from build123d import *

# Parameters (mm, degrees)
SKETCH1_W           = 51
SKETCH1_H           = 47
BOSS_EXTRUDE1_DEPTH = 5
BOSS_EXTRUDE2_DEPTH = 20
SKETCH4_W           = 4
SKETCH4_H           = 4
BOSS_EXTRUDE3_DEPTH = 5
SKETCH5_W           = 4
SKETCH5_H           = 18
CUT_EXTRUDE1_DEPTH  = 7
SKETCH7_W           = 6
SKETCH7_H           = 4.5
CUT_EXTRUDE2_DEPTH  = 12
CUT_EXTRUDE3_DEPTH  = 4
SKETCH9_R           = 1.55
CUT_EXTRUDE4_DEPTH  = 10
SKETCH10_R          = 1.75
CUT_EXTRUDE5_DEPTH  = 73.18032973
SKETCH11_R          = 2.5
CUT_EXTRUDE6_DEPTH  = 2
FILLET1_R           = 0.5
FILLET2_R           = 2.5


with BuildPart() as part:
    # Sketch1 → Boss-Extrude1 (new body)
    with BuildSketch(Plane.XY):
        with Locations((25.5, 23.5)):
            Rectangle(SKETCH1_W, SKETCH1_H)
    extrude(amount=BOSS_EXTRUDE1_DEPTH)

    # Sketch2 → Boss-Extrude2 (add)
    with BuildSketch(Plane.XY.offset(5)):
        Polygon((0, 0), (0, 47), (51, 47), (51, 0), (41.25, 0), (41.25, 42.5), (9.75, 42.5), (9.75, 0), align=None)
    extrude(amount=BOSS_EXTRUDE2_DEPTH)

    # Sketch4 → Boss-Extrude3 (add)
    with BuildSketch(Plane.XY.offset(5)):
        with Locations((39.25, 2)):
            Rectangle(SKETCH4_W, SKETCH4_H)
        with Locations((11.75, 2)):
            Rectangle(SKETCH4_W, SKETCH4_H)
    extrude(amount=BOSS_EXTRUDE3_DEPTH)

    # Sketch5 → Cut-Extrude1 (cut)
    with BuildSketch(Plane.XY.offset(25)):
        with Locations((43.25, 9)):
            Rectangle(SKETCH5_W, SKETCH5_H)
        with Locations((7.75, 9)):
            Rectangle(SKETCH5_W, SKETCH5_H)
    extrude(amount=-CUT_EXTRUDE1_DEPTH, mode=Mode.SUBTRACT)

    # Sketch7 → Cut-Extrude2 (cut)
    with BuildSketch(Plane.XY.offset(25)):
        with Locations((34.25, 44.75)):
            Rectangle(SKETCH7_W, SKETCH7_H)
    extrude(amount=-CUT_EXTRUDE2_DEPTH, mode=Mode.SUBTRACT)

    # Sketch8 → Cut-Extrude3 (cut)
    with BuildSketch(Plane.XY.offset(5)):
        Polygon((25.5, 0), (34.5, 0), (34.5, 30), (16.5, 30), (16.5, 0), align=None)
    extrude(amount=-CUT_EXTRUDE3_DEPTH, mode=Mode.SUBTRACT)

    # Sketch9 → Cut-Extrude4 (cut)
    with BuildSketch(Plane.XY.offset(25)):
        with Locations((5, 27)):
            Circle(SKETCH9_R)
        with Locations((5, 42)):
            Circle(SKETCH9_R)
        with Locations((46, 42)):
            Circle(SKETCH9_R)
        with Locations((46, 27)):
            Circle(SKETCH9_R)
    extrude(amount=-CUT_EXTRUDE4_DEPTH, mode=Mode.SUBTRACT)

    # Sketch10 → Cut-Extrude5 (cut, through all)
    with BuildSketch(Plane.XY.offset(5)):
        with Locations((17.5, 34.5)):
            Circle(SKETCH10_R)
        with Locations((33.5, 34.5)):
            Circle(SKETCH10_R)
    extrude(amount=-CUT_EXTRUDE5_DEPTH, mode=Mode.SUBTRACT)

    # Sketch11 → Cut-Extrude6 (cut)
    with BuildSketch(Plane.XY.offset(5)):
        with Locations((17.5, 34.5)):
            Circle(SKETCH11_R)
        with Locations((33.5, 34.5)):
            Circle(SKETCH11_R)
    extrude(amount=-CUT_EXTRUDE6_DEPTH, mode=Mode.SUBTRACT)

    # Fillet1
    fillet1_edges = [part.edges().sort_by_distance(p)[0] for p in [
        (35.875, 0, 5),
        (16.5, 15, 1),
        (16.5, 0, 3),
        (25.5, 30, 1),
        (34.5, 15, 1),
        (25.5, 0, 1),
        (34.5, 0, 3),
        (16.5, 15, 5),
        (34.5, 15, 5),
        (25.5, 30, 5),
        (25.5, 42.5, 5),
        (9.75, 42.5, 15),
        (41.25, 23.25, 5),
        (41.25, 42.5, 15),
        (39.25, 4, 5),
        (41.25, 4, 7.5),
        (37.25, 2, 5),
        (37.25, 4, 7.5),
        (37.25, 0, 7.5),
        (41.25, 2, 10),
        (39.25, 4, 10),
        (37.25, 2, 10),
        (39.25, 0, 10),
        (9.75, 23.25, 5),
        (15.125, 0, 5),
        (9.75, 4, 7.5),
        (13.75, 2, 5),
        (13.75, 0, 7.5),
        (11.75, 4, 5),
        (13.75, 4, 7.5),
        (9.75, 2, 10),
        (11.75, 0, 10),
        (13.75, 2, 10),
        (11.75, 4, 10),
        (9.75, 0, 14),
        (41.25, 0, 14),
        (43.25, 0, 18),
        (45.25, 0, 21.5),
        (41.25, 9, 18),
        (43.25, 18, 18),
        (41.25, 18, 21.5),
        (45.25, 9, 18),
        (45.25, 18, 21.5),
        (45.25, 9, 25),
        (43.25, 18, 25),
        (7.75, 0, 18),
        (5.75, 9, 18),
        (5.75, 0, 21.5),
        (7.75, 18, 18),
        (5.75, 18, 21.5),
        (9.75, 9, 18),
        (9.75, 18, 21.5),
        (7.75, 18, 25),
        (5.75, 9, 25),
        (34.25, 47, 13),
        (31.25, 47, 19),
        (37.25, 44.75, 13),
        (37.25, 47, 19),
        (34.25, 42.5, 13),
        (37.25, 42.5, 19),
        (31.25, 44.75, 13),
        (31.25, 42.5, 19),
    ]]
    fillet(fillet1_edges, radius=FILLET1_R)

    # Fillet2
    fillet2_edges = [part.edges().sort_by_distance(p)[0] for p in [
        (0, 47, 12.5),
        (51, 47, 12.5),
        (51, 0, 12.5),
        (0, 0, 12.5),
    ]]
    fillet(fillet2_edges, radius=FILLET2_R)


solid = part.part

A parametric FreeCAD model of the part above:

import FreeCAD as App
import Part
import Sketcher

V = App.Vector
Q = App.Units.Quantity


def edges_at(feature, points):
    """Names of the edges that pass closest to the given points."""
    edges = feature.Shape.Edges
    near = lambda p: min(range(len(edges)), key=lambda i: edges[i].distToShape(Part.Vertex(*p))[0])
    return sorted({f"Edge{near(p) + 1}" for p in points})

doc = App.newDocument("Part")
body = doc.addObject("PartDesign::Body", "Body")

# Sketch on XY plane
sketch1 = doc.addObject("Sketcher::SketchObject", "Sketch")
body.addObject(sketch1)
sketch1.AttachmentSupport = (doc.XY_Plane, [""])
sketch1.MapMode = "FlatFace"
sketch1.addGeometry([
    Part.LineSegment(V(0, 47, 0), V(0, 0, 0)),
    Part.LineSegment(V(0, 0, 0), V(51, 0, 0)),
    Part.LineSegment(V(51, 0, 0), V(51, 47, 0)),
    Part.LineSegment(V(51, 47, 0), V(0, 47, 0)),
], False)
sketch1.addConstraint([
    Sketcher.Constraint("Coincident", 0, 2, 1, 1),
    Sketcher.Constraint("Coincident", 1, 2, 2, 1),
    Sketcher.Constraint("Coincident", 2, 2, 3, 1),
    Sketcher.Constraint("Coincident", 3, 2, 0, 1),
    Sketcher.Constraint("Vertical", 0),
    Sketcher.Constraint("Horizontal", 1),
    Sketcher.Constraint("Vertical", 2),
    Sketcher.Constraint("Horizontal", 3),
    Sketcher.Constraint("Coincident", 0, 2, -1, 1),
    Sketcher.Constraint("DistanceX", 1, 1, 1, 2, Q("51 mm")),
    Sketcher.Constraint("DistanceY", 0, 2, 0, 1, Q("47 mm")),
])
pad1 = doc.addObject("PartDesign::Pad", "Pad")
body.addObject(pad1)
pad1.Profile = sketch1
pad1.Length = 5

# Sketch on XY plane
sketch2 = doc.addObject("Sketcher::SketchObject", "Sketch001")
body.addObject(sketch2)
sketch2.AttachmentSupport = (doc.XY_Plane, [""])
sketch2.MapMode = "FlatFace"
sketch2.AttachmentOffset = App.Placement(V(0, 0, 5), App.Rotation())
sketch2.addGeometry([
    Part.LineSegment(V(0, 47, 0), V(0, 0, 0)),  # 0
    Part.LineSegment(V(0, 0, 0), V(9.75, 0, 0)),  # 1
    Part.LineSegment(V(9.75, 0, 0), V(9.75, 42.5, 0)),  # 2
    Part.LineSegment(V(9.75, 42.5, 0), V(41.25, 42.5, 0)),  # 3
    Part.LineSegment(V(41.25, 42.5, 0), V(41.25, 0, 0)),  # 4
    Part.LineSegment(V(41.25, 0, 0), V(51, 0, 0)),  # 5
    Part.LineSegment(V(51, 0, 0), V(51, 47, 0)),  # 6
    Part.LineSegment(V(51, 47, 0), V(0, 47, 0)),  # 7
], False)
sketch2.addConstraint([
    Sketcher.Constraint("Coincident", 0, 2, 1, 1),
    Sketcher.Constraint("Coincident", 1, 2, 2, 1),
    Sketcher.Constraint("Coincident", 2, 2, 3, 1),
    Sketcher.Constraint("Coincident", 3, 2, 4, 1),
    Sketcher.Constraint("Coincident", 4, 2, 5, 1),
    Sketcher.Constraint("Coincident", 5, 2, 6, 1),
    Sketcher.Constraint("Coincident", 6, 2, 7, 1),
    Sketcher.Constraint("Coincident", 7, 2, 0, 1),
    Sketcher.Constraint("Vertical", 0),
    Sketcher.Constraint("Horizontal", 1),
    Sketcher.Constraint("Vertical", 2),
    Sketcher.Constraint("Horizontal", 3),
    Sketcher.Constraint("Vertical", 4),
    Sketcher.Constraint("Horizontal", 5),
    Sketcher.Constraint("Vertical", 6),
    Sketcher.Constraint("Horizontal", 7),
    Sketcher.Constraint("Coincident", 0, 2, -1, 1),
    Sketcher.Constraint("PointOnObject", 4, 2, -1),
    Sketcher.Constraint("Equal", 1, 5),
    Sketcher.Constraint("DistanceX", 7, 2, 7, 1, Q("51 mm")),
    Sketcher.Constraint("DistanceY", 0, 2, 0, 1, Q("47 mm")),
    Sketcher.Constraint("DistanceX", 3, 1, 3, 2, Q("31.5 mm")),
    Sketcher.Constraint("DistanceY", 2, 1, 2, 2, Q("42.5 mm")),
])
pad2 = doc.addObject("PartDesign::Pad", "Pad001")
body.addObject(pad2)
pad2.Profile = sketch2
pad2.Length = 20

# Sketch on XY plane
sketch3 = doc.addObject("Sketcher::SketchObject", "Sketch002")
body.addObject(sketch3)
sketch3.AttachmentSupport = (doc.XY_Plane, [""])
sketch3.MapMode = "FlatFace"
sketch3.AttachmentOffset = App.Placement(V(0, 0, 5), App.Rotation())
sketch3.addGeometry([
    Part.LineSegment(V(37.25, 4, 0), V(37.25, 0, 0)),  # 0
    Part.LineSegment(V(37.25, 0, 0), V(41.25, 0, 0)),  # 1
    Part.LineSegment(V(41.25, 0, 0), V(41.25, 4, 0)),  # 2
    Part.LineSegment(V(41.25, 4, 0), V(37.25, 4, 0)),  # 3
    Part.LineSegment(V(9.75, 4, 0), V(9.75, 0, 0)),  # 4
    Part.LineSegment(V(9.75, 0, 0), V(13.75, 0, 0)),  # 5
    Part.LineSegment(V(13.75, 0, 0), V(13.75, 4, 0)),  # 6
    Part.LineSegment(V(13.75, 4, 0), V(9.75, 4, 0)),  # 7
], False)
sketch3.addConstraint([
    Sketcher.Constraint("Coincident", 0, 2, 1, 1),
    Sketcher.Constraint("Coincident", 1, 2, 2, 1),
    Sketcher.Constraint("Coincident", 2, 2, 3, 1),
    Sketcher.Constraint("Coincident", 3, 2, 0, 1),
    Sketcher.Constraint("Coincident", 4, 2, 5, 1),
    Sketcher.Constraint("Coincident", 5, 2, 6, 1),
    Sketcher.Constraint("Coincident", 6, 2, 7, 1),
    Sketcher.Constraint("Coincident", 7, 2, 4, 1),
    Sketcher.Constraint("Vertical", 0),
    Sketcher.Constraint("Horizontal", 1),
    Sketcher.Constraint("Vertical", 2),
    Sketcher.Constraint("Horizontal", 3),
    Sketcher.Constraint("Vertical", 4),
    Sketcher.Constraint("Horizontal", 5),
    Sketcher.Constraint("Vertical", 6),
    Sketcher.Constraint("Horizontal", 7),
    Sketcher.Constraint("PointOnObject", 0, 2, -1),
    Sketcher.Constraint("PointOnObject", 4, 2, -1),
    Sketcher.Constraint("Horizontal", 3, 2, 6, 2),
    Sketcher.Constraint("Equal", 3, 5),
    Sketcher.Constraint("Equal", 7, 0),
    Sketcher.Constraint("DistanceX", 1, 1, 1, 2, Q("4 mm")),
    Sketcher.Constraint("DistanceX", 4, 2, 0, 2, Q("27.5 mm")),
    Sketcher.Constraint("DistanceX", -1, 1, 0, 2, Q("37.25 mm")),
])
pad3 = doc.addObject("PartDesign::Pad", "Pad002")
body.addObject(pad3)
pad3.Profile = sketch3
pad3.Length = 5

# Sketch on XY plane
sketch4 = doc.addObject("Sketcher::SketchObject", "Sketch003")
body.addObject(sketch4)
sketch4.AttachmentSupport = (doc.XY_Plane, [""])
sketch4.MapMode = "FlatFace"
sketch4.AttachmentOffset = App.Placement(V(0, 0, 25), App.Rotation())
sketch4.addGeometry([
    Part.LineSegment(V(41.25, 18, 0), V(41.25, 0, 0)),  # 0
    Part.LineSegment(V(41.25, 0, 0), V(45.25, 0, 0)),  # 1
    Part.LineSegment(V(45.25, 0, 0), V(45.25, 18, 0)),  # 2
    Part.LineSegment(V(45.25, 18, 0), V(41.25, 18, 0)),  # 3
    Part.LineSegment(V(5.75, 18, 0), V(5.75, 0, 0)),  # 4
    Part.LineSegment(V(5.75, 0, 0), V(9.75, 0, 0)),  # 5
    Part.LineSegment(V(9.75, 0, 0), V(9.75, 18, 0)),  # 6
    Part.LineSegment(V(9.75, 18, 0), V(5.75, 18, 0)),  # 7
], False)
sketch4.addConstraint([
    Sketcher.Constraint("Coincident", 0, 2, 1, 1),
    Sketcher.Constraint("Coincident", 1, 2, 2, 1),
    Sketcher.Constraint("Coincident", 2, 2, 3, 1),
    Sketcher.Constraint("Coincident", 3, 2, 0, 1),
    Sketcher.Constraint("Coincident", 4, 2, 5, 1),
    Sketcher.Constraint("Coincident", 5, 2, 6, 1),
    Sketcher.Constraint("Coincident", 6, 2, 7, 1),
    Sketcher.Constraint("Coincident", 7, 2, 4, 1),
    Sketcher.Constraint("Vertical", 0),
    Sketcher.Constraint("Horizontal", 1),
    Sketcher.Constraint("Vertical", 2),
    Sketcher.Constraint("Horizontal", 3),
    Sketcher.Constraint("Vertical", 4),
    Sketcher.Constraint("Horizontal", 5),
    Sketcher.Constraint("Vertical", 6),
    Sketcher.Constraint("Horizontal", 7),
    Sketcher.Constraint("PointOnObject", 0, 2, -1),
    Sketcher.Constraint("PointOnObject", 4, 2, -1),
    Sketcher.Constraint("Horizontal", 3, 2, 6, 2),
    Sketcher.Constraint("Equal", 3, 5),
    Sketcher.Constraint("DistanceX", 1, 1, 1, 2, Q("4 mm")),
    Sketcher.Constraint("DistanceY", 0, 2, 0, 1, Q("18 mm")),
    Sketcher.Constraint("DistanceX", 4, 2, 0, 2, Q("35.5 mm")),
    Sketcher.Constraint("DistanceX", -1, 1, 0, 2, Q("41.25 mm")),
])
pocket1 = doc.addObject("PartDesign::Pocket", "Pocket")
body.addObject(pocket1)
pocket1.Profile = sketch4
pocket1.Length = 7

# Sketch on XY plane
sketch5 = doc.addObject("Sketcher::SketchObject", "Sketch004")
body.addObject(sketch5)
sketch5.AttachmentSupport = (doc.XY_Plane, [""])
sketch5.MapMode = "FlatFace"
sketch5.AttachmentOffset = App.Placement(V(0, 0, 25), App.Rotation())
sketch5.addGeometry([
    Part.LineSegment(V(31.25, 47, 0), V(31.25, 42.5, 0)),
    Part.LineSegment(V(31.25, 42.5, 0), V(37.25, 42.5, 0)),
    Part.LineSegment(V(37.25, 42.5, 0), V(37.25, 47, 0)),
    Part.LineSegment(V(37.25, 47, 0), V(31.25, 47, 0)),
], False)
sketch5.addConstraint([
    Sketcher.Constraint("Coincident", 0, 2, 1, 1),
    Sketcher.Constraint("Coincident", 1, 2, 2, 1),
    Sketcher.Constraint("Coincident", 2, 2, 3, 1),
    Sketcher.Constraint("Coincident", 3, 2, 0, 1),
    Sketcher.Constraint("Vertical", 0),
    Sketcher.Constraint("Horizontal", 1),
    Sketcher.Constraint("Vertical", 2),
    Sketcher.Constraint("Horizontal", 3),
    Sketcher.Constraint("DistanceX", 1, 1, 1, 2, Q("6 mm")),
    Sketcher.Constraint("DistanceY", 0, 2, 0, 1, Q("4.5 mm")),
    Sketcher.Constraint("DistanceY", -1, 1, 2, 2, Q("47 mm")),
    Sketcher.Constraint("DistanceX", -1, 1, 0, 2, Q("31.25 mm")),
])
pocket2 = doc.addObject("PartDesign::Pocket", "Pocket001")
body.addObject(pocket2)
pocket2.Profile = sketch5
pocket2.Length = 12

# Sketch on XY plane
sketch6 = doc.addObject("Sketcher::SketchObject", "Sketch005")
body.addObject(sketch6)
sketch6.AttachmentSupport = (doc.XY_Plane, [""])
sketch6.MapMode = "FlatFace"
sketch6.AttachmentOffset = App.Placement(V(0, 0, 5), App.Rotation())
sketch6.addGeometry([
    Part.LineSegment(V(34.5, 0, 0), V(34.5, 30, 0)),
    Part.LineSegment(V(34.5, 30, 0), V(16.5, 30, 0)),
    Part.LineSegment(V(16.5, 30, 0), V(16.5, 0, 0)),
    Part.LineSegment(V(16.5, 0, 0), V(34.5, 0, 0)),
], False)
sketch6.addConstraint([
    Sketcher.Constraint("Coincident", 0, 2, 1, 1),
    Sketcher.Constraint("Coincident", 1, 2, 2, 1),
    Sketcher.Constraint("Coincident", 2, 2, 3, 1),
    Sketcher.Constraint("Coincident", 3, 2, 0, 1),
    Sketcher.Constraint("Vertical", 0),
    Sketcher.Constraint("Horizontal", 1),
    Sketcher.Constraint("Vertical", 2),
    Sketcher.Constraint("Horizontal", 3),
    Sketcher.Constraint("PointOnObject", 2, 2, -1),
    Sketcher.Constraint("DistanceX", 1, 2, 1, 1, Q("18 mm")),
    Sketcher.Constraint("DistanceY", 0, 1, 0, 2, Q("30 mm")),
    Sketcher.Constraint("DistanceX", -1, 1, 0, 2, Q("34.5 mm")),
])
pocket3 = doc.addObject("PartDesign::Pocket", "Pocket002")
body.addObject(pocket3)
pocket3.Profile = sketch6
pocket3.Length = 4

# Sketch on XY plane
sketch7 = doc.addObject("Sketcher::SketchObject", "Sketch006")
body.addObject(sketch7)
sketch7.AttachmentSupport = (doc.XY_Plane, [""])
sketch7.MapMode = "FlatFace"
sketch7.AttachmentOffset = App.Placement(V(0, 0, 25), App.Rotation())
sketch7.addGeometry([
    Part.Circle(V(5, 27, 0), V(0, 0, 1), 1.55),
    Part.Circle(V(5, 42, 0), V(0, 0, 1), 1.55),
    Part.Circle(V(46, 42, 0), V(0, 0, 1), 1.55),
    Part.Circle(V(46, 27, 0), V(0, 0, 1), 1.55),
], False)
sketch7.addConstraint([
    Sketcher.Constraint("Equal", 0, 1),
    Sketcher.Constraint("Equal", 1, 2),
    Sketcher.Constraint("Equal", 2, 3),
    Sketcher.Constraint("Horizontal", 1, 3, 2, 3),
    Sketcher.Constraint("Horizontal", 0, 3, 3, 3),
    Sketcher.Constraint("Vertical", 0, 3, 1, 3),
    Sketcher.Constraint("Vertical", 2, 3, 3, 3),
    Sketcher.Constraint("Diameter", 0, Q("3.1 mm")),
    Sketcher.Constraint("DistanceX", -1, 1, 0, 3, Q("5 mm")),
    Sketcher.Constraint("DistanceY", -1, 1, 0, 3, Q("27 mm")),
    Sketcher.Constraint("DistanceY", -1, 1, 1, 3, Q("42 mm")),
    Sketcher.Constraint("DistanceX", -1, 1, 2, 3, Q("46 mm")),
])
pocket4 = doc.addObject("PartDesign::Pocket", "Pocket003")
body.addObject(pocket4)
pocket4.Profile = sketch7
pocket4.Length = 10

# Sketch on XY plane
sketch8 = doc.addObject("Sketcher::SketchObject", "Sketch007")
body.addObject(sketch8)
sketch8.AttachmentSupport = (doc.XY_Plane, [""])
sketch8.MapMode = "FlatFace"
sketch8.AttachmentOffset = App.Placement(V(0, 0, 5), App.Rotation())
sketch8.addGeometry([
    Part.Circle(V(17.5, 34.5, 0), V(0, 0, 1), 1.75),
    Part.Circle(V(33.5, 34.5, 0), V(0, 0, 1), 1.75),
], False)
sketch8.addConstraint([
    Sketcher.Constraint("Equal", 0, 1),
    Sketcher.Constraint("Horizontal", 0, 3, 1, 3),
    Sketcher.Constraint("Diameter", 0, Q("3.5 mm")),
    Sketcher.Constraint("DistanceX", 0, 3, 1, 3, Q("16 mm")),
    Sketcher.Constraint("DistanceX", -1, 1, 0, 3, Q("17.5 mm")),
    Sketcher.Constraint("DistanceY", -1, 1, 0, 3, Q("34.5 mm")),
])
pocket5 = doc.addObject("PartDesign::Pocket", "Pocket004")
body.addObject(pocket5)
pocket5.Profile = sketch8
pocket5.Type = "ThroughAll"

# Sketch on XY plane
sketch9 = doc.addObject("Sketcher::SketchObject", "Sketch008")
body.addObject(sketch9)
sketch9.AttachmentSupport = (doc.XY_Plane, [""])
sketch9.MapMode = "FlatFace"
sketch9.AttachmentOffset = App.Placement(V(0, 0, 5), App.Rotation())
sketch9.addGeometry([
    Part.Circle(V(17.5, 34.5, 0), V(0, 0, 1), 2.5),
    Part.Circle(V(33.5, 34.5, 0), V(0, 0, 1), 2.5),
], False)
sketch9.addConstraint([
    Sketcher.Constraint("Equal", 0, 1),
    Sketcher.Constraint("Horizontal", 0, 3, 1, 3),
    Sketcher.Constraint("Diameter", 0, Q("5 mm")),
    Sketcher.Constraint("DistanceX", 0, 3, 1, 3, Q("16 mm")),
    Sketcher.Constraint("DistanceX", -1, 1, 0, 3, Q("17.5 mm")),
    Sketcher.Constraint("DistanceY", -1, 1, 0, 3, Q("34.5 mm")),
])
pocket6 = doc.addObject("PartDesign::Pocket", "Pocket005")
body.addObject(pocket6)
pocket6.Profile = sketch9
pocket6.Length = 2
doc.recompute()

fillet = doc.addObject("PartDesign::Fillet", "Fillet")
body.addObject(fillet)
fillet.Base = (pocket6, edges_at(pocket6, [
    (35.875, 0, 5),
    (16.5, 15, 1),
    (16.5, 0, 3),
    (25.5, 30, 1),
    (34.5, 15, 1),
    (25.5, 0, 1),
    (34.5, 0, 3),
    (16.5, 15, 5),
    (34.5, 15, 5),
    (25.5, 30, 5),
    (25.5, 42.5, 5),
    (9.75, 42.5, 15),
    (41.25, 23.25, 5),
    (41.25, 42.5, 15),
    (39.25, 4, 5),
    (41.25, 4, 7.5),
    (37.25, 2, 5),
    (37.25, 4, 7.5),
    (37.25, 0, 7.5),
    (41.25, 2, 10),
    (39.25, 4, 10),
    (37.25, 2, 10),
    (39.25, 0, 10),
    (9.75, 23.25, 5),
    (15.125, 0, 5),
    (9.75, 4, 7.5),
    (13.75, 2, 5),
    (13.75, 0, 7.5),
    (11.75, 4, 5),
    (13.75, 4, 7.5),
    (9.75, 2, 10),
    (11.75, 0, 10),
    (13.75, 2, 10),
    (11.75, 4, 10),
    (9.75, 0, 14),
    (41.25, 0, 14),
    (43.25, 0, 18),
    (45.25, 0, 21.5),
    (41.25, 9, 18),
    (43.25, 18, 18),
    (41.25, 18, 21.5),
    (45.25, 9, 18),
    (45.25, 18, 21.5),
    (45.25, 9, 25),
    (43.25, 18, 25),
    (7.75, 0, 18),
    (5.75, 9, 18),
    (5.75, 0, 21.5),
    (7.75, 18, 18),
    (5.75, 18, 21.5),
    (9.75, 9, 18),
    (9.75, 18, 21.5),
    (7.75, 18, 25),
    (5.75, 9, 25),
    (34.25, 47, 13),
    (31.25, 47, 19),
    (37.25, 44.75, 13),
    (37.25, 47, 19),
    (34.25, 42.5, 13),
    (37.25, 42.5, 19),
    (31.25, 44.75, 13),
    (31.25, 42.5, 19),
]))
fillet.Radius = 0.5
doc.recompute()

fillet2 = doc.addObject("PartDesign::Fillet", "Fillet001")
body.addObject(fillet2)
fillet2.Base = (fillet, edges_at(fillet, [
    (0, 47, 12.5),
    (51, 47, 12.5),
    (51, 0, 12.5),
    (0, 0, 12.5),
]))
fillet2.Radius = 2.5

doc.recompute()
